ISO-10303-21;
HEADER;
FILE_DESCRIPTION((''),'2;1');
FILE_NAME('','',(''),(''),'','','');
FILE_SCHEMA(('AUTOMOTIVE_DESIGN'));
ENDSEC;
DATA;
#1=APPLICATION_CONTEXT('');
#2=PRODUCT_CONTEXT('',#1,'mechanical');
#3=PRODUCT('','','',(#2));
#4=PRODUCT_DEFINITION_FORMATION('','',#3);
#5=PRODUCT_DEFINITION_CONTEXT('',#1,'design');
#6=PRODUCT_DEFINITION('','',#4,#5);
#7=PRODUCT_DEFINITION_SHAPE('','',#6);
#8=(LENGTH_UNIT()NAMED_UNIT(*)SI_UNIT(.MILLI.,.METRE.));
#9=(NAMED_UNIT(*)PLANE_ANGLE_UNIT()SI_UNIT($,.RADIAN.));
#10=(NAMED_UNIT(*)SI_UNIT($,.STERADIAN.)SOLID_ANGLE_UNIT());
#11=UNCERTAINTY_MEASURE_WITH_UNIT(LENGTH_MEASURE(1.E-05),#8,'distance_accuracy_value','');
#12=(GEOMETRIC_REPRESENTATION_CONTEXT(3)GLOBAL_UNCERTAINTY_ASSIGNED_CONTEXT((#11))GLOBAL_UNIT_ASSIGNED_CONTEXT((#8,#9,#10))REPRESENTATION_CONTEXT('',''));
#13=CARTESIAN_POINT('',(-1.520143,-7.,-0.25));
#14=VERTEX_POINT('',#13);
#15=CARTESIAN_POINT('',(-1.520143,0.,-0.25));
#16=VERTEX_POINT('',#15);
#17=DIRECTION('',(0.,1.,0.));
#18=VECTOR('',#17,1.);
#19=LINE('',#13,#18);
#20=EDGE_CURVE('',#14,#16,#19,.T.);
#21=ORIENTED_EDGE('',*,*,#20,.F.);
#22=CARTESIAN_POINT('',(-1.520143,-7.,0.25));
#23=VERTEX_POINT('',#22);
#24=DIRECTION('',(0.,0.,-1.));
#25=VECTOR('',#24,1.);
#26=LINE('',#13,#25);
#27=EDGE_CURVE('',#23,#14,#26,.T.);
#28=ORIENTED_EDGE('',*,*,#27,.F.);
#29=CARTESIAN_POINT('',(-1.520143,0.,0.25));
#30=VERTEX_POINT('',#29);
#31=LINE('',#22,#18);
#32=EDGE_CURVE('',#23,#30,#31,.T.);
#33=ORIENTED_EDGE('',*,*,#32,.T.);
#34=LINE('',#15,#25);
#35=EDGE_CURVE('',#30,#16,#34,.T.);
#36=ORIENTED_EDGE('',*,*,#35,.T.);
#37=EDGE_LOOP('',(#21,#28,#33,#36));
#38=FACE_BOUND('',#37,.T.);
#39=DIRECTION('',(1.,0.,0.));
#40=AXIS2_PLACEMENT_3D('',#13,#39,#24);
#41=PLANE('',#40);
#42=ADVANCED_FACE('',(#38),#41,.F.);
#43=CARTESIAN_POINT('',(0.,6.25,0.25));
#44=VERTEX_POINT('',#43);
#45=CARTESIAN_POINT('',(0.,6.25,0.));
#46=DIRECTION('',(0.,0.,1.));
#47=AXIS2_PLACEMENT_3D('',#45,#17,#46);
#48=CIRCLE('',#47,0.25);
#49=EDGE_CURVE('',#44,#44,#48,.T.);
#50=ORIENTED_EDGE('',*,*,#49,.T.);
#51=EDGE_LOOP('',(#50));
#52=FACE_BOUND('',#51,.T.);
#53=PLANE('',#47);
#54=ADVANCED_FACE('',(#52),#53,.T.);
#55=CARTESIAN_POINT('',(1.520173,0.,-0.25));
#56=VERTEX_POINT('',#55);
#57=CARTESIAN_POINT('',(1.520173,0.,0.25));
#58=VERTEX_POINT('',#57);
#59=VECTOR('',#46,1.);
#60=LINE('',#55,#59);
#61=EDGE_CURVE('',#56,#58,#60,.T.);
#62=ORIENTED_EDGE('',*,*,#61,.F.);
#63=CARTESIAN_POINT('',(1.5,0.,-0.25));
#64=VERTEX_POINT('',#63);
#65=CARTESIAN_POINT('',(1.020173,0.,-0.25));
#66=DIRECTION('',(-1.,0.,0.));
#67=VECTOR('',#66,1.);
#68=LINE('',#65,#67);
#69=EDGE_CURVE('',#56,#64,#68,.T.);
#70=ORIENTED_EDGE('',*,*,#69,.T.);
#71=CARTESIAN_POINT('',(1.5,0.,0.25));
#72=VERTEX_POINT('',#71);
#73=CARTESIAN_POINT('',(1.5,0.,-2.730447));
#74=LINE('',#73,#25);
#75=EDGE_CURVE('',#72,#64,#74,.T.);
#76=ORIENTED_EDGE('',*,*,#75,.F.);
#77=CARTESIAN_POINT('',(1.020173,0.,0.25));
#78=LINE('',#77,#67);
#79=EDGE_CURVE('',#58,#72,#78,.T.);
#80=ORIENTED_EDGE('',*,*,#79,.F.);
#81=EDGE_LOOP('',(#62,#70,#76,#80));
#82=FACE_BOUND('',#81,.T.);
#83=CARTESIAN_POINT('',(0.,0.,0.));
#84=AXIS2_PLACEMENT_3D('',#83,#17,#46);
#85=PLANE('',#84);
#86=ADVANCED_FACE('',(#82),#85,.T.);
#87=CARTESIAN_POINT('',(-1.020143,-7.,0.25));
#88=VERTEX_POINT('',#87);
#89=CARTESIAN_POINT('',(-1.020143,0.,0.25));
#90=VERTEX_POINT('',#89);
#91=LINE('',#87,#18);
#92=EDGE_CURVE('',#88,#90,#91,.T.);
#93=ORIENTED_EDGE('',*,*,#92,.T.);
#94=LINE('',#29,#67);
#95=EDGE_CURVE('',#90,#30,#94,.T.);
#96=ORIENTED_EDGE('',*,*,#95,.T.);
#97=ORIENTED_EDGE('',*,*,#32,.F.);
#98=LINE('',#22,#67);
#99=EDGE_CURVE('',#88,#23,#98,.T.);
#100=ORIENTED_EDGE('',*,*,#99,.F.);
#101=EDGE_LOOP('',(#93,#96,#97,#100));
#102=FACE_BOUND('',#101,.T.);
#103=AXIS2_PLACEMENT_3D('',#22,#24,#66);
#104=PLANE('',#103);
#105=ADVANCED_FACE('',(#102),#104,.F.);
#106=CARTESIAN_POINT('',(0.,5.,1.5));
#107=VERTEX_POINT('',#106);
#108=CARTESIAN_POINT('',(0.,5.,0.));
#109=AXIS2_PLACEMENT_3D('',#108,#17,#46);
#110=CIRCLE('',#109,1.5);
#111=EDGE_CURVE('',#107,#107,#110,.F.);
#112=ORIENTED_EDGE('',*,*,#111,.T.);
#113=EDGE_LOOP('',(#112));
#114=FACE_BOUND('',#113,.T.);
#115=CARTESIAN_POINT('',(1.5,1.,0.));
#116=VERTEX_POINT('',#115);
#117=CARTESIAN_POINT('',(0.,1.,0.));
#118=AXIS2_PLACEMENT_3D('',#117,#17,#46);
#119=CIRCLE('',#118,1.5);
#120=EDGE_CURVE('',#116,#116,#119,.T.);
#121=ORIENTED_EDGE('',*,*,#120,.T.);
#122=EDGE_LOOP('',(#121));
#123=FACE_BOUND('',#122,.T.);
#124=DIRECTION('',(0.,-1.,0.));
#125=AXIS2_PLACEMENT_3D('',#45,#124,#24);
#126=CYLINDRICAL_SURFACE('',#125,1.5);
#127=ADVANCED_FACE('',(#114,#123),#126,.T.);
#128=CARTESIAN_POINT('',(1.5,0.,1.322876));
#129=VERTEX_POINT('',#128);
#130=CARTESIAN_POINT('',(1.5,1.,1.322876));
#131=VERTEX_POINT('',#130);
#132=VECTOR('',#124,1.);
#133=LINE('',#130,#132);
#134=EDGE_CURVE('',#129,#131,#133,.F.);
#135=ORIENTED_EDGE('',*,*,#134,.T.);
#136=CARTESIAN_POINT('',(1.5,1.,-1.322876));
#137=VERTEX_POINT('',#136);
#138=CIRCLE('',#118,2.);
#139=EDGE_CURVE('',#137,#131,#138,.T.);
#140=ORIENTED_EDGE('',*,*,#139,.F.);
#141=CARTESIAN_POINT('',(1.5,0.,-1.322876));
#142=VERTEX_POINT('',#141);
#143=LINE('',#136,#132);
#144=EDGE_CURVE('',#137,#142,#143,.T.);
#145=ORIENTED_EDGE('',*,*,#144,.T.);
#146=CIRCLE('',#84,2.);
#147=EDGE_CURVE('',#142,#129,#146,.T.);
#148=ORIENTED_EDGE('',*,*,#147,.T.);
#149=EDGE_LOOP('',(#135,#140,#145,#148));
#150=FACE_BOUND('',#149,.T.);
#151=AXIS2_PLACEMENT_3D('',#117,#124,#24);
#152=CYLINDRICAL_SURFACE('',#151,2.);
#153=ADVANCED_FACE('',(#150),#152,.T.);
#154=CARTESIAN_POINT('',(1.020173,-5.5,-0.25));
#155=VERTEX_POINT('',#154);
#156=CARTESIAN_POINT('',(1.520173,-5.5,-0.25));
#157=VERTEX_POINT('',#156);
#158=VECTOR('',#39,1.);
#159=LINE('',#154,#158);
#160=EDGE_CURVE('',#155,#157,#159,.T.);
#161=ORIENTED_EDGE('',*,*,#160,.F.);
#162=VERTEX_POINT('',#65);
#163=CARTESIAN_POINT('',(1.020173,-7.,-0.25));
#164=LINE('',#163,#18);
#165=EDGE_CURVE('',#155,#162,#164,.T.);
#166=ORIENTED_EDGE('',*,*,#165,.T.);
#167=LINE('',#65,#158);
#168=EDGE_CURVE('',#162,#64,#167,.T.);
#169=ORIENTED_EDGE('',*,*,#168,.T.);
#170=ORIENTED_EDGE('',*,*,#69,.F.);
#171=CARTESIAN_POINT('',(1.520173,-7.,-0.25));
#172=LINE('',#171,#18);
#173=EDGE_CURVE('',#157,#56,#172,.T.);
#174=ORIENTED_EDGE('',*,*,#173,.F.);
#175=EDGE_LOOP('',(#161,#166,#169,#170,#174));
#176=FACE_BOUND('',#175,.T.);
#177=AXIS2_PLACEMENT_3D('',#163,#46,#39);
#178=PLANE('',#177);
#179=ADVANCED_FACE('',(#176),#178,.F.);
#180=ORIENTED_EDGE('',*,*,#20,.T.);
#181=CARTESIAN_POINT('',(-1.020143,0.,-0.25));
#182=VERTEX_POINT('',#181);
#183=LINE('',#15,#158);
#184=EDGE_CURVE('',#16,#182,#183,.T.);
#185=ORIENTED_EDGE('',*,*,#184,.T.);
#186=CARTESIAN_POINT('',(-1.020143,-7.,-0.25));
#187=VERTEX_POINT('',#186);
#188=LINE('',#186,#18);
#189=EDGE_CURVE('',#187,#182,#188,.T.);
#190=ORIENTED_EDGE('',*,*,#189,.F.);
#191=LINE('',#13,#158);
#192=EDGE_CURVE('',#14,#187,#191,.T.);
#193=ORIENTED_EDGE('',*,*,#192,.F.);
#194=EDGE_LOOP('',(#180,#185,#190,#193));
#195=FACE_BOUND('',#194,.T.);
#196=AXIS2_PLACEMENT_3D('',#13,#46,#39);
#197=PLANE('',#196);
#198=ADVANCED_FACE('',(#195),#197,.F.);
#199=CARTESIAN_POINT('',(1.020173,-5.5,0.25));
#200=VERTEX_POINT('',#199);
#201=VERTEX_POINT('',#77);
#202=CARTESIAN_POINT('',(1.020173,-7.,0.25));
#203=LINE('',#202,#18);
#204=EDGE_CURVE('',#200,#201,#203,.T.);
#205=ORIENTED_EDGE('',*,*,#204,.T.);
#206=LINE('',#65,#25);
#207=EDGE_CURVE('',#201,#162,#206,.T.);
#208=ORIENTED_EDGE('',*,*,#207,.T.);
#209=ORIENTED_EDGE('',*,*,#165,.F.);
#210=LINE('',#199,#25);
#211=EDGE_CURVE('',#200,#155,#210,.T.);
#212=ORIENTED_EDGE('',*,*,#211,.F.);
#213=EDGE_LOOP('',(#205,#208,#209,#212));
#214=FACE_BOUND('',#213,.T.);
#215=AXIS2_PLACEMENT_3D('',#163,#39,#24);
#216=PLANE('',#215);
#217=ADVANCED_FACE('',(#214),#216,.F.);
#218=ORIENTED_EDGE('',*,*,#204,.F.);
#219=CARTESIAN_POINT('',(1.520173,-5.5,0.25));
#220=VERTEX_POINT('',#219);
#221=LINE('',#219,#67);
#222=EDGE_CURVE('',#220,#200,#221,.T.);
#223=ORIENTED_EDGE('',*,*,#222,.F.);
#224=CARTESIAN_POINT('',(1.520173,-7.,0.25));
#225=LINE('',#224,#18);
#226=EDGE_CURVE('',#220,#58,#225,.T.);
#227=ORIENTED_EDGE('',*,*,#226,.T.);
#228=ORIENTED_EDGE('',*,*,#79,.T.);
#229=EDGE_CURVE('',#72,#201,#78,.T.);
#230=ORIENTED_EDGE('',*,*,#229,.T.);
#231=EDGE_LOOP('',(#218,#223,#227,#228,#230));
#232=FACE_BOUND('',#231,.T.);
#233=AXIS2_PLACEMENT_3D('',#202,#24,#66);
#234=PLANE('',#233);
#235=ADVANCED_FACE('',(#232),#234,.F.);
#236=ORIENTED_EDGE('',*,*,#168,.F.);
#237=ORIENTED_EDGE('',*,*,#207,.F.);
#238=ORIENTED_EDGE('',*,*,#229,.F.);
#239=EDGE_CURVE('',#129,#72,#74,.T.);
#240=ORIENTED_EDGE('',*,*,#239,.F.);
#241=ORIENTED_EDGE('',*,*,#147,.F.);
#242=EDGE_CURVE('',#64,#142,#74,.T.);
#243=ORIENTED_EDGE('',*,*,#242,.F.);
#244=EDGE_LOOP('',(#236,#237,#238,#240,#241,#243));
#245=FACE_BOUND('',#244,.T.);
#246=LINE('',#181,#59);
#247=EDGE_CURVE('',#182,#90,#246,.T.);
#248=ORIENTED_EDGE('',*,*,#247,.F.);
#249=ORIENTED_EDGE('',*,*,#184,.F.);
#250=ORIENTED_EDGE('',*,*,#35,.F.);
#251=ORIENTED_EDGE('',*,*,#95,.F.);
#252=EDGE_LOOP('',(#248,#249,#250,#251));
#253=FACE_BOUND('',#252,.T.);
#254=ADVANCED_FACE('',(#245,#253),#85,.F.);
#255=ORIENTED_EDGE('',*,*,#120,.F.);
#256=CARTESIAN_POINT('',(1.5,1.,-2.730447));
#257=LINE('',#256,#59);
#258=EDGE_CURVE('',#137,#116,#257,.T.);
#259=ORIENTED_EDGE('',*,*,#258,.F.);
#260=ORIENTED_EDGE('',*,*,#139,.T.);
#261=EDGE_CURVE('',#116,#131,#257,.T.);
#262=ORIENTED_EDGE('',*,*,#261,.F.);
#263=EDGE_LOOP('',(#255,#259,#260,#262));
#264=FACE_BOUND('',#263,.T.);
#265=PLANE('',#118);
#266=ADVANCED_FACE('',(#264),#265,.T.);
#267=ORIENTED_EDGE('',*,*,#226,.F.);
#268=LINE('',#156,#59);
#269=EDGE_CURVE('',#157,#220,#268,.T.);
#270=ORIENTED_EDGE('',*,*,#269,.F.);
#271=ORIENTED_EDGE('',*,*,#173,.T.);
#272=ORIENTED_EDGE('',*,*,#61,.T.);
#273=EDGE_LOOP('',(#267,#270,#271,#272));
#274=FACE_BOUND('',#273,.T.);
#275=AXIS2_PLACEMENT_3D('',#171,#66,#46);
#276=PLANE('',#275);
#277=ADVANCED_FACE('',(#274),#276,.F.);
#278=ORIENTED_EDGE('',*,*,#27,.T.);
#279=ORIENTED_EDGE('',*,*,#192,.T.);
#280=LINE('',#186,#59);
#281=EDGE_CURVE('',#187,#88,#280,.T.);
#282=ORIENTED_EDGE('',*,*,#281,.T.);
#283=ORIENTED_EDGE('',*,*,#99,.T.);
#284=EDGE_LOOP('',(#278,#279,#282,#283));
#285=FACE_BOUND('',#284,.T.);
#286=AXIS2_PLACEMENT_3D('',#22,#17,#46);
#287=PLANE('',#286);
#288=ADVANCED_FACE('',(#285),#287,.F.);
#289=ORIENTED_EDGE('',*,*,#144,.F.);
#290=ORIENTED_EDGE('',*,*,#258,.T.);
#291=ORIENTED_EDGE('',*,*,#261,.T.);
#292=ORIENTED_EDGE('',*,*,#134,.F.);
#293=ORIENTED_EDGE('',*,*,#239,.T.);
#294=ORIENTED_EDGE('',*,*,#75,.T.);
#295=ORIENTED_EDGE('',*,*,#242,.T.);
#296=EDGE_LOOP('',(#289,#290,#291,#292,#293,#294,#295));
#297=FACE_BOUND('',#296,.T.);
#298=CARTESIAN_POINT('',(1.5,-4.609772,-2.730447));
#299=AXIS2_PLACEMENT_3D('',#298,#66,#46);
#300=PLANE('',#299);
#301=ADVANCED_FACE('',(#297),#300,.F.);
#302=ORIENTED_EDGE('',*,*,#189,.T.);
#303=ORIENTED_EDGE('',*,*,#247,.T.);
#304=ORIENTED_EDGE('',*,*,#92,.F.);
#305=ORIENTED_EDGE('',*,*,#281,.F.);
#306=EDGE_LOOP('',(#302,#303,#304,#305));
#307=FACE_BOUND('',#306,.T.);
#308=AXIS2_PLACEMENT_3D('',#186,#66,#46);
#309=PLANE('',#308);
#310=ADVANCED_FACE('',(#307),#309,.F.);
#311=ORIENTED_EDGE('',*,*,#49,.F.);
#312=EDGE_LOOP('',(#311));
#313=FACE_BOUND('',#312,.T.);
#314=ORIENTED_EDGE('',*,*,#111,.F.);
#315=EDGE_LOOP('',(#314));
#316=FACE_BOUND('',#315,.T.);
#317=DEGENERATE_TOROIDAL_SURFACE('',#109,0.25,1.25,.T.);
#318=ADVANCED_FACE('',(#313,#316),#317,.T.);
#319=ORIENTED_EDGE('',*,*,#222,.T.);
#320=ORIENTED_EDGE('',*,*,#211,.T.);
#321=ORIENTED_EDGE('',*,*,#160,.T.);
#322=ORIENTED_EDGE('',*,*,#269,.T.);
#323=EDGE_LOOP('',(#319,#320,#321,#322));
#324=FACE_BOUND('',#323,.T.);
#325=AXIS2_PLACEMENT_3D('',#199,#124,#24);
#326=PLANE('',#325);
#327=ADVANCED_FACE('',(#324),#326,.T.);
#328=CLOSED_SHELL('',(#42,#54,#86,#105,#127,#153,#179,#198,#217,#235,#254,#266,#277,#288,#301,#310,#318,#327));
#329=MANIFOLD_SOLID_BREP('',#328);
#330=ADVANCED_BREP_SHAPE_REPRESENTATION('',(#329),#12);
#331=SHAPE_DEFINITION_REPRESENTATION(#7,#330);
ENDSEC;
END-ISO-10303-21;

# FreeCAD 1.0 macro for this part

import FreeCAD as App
import Part
import Sketcher
Q = App.Units.Quantity


def edges_at(feature, points):
    """Names of the edges that pass closest to the given points."""
    edges = feature.Shape.Edges
    near = lambda p: min(range(len(edges)), key=lambda i: edges[i].distToShape(Part.Vertex(*p))[0])
    return sorted({f"Edge{near(p) + 1}" for p in points})


def add_polygon(sketch, points):
    """Adds a closed chain of lines whose ends are joined by coincident constraints."""
    first, n = sketch.GeometryCount, len(points)
    for a, b in zip(points, points[1:] + points[:1]):
        sketch.addGeometry(Part.LineSegment(App.Vector(*a, 0), App.Vector(*b, 0)), False)
    for i in range(n):
        sketch.addConstraint(Sketcher.Constraint("Coincident", first + i, 2, first + (i + 1) % n, 1))

doc = App.newDocument("Part")
body = doc.addObject("PartDesign::Body", "Body")

sketch1 = body.newObject("Sketcher::SketchObject", "Sketch")
sketch1.AttachmentSupport = (doc.getObject("XZ_Plane"), [""])
sketch1.MapMode = "FlatFace"
sketch1.addGeometry(Part.Circle(App.Vector(0, 0, 0), App.Vector(0, 0, 1), 2), False)
sketch1.addConstraint(Sketcher.Constraint("Coincident", 0, 3, -1, 1))
sketch1.addConstraint(Sketcher.Constraint("Diameter", 0, Q("4 mm")))
pad1 = body.newObject("PartDesign::Pad", "Pad")
pad1.Profile = sketch1
pad1.Length = 1
pad1.Reversed = True

sketch2 = body.newObject("Sketcher::SketchObject", "Sketch001")
sketch2.AttachmentSupport = (doc.getObject("XZ_Plane"), [""])
sketch2.MapMode = "FlatFace"
sketch2.AttachmentOffset = App.Placement(App.Vector(0, 0, -1), App.Rotation())
sketch2.addGeometry(Part.Circle(App.Vector(0, 0, 0), App.Vector(0, 0, 1), 1.5), False)
sketch2.addConstraint(Sketcher.Constraint("Coincident", 0, 3, -1, 1))
sketch2.addConstraint(Sketcher.Constraint("Diameter", 0, Q("3 mm")))
pad2 = body.newObject("PartDesign::Pad", "Pad001")
pad2.Profile = sketch2
pad2.Length = 5.25
pad2.Reversed = True

sketch3 = body.newObject("Sketcher::SketchObject", "Sketch002")
sketch3.AttachmentSupport = (doc.getObject("XZ_Plane"), [""])
sketch3.MapMode = "FlatFace"
add_polygon(sketch3, [(-1.520143, 0.25), (-1.520143, -0.25), (-1.020143, -0.25), (-1.020143, 0.25)])
add_polygon(sketch3, [(1.020173, 0.25), (1.020173, -0.25), (1.520173, -0.25), (1.520173, 0.25)])
sketch3.addConstraint(Sketcher.Constraint("Vertical", 0))
sketch3.addConstraint(Sketcher.Constraint("Horizontal", 1))
sketch3.addConstraint(Sketcher.Constraint("Vertical", 2))
sketch3.addConstraint(Sketcher.Constraint("Horizontal", 3))
sketch3.addConstraint(Sketcher.Constraint("Vertical", 4))
sketch3.addConstraint(Sketcher.Constraint("Horizontal", 5))
sketch3.addConstraint(Sketcher.Constraint("Vertical", 6))
sketch3.addConstraint(Sketcher.Constraint("Horizontal", 7))
sketch3.addConstraint(Sketcher.Constraint("Horizontal", 1, 2, 4, 2))
sketch3.addConstraint(Sketcher.Constraint("Horizontal", 3, 2, 6, 2))
sketch3.addConstraint(Sketcher.Constraint("Equal", 3, 5))
sketch3.addConstraint(Sketcher.Constraint("Equal", 7, 0))
sketch3.addConstraint(Sketcher.Constraint("DistanceX", 1, 1, 1, 2, Q("0.5 mm")))
sketch3.addConstraint(Sketcher.Constraint("DistanceY", 0, 2, -1, 1, Q("0.25 mm")))
sketch3.addConstraint(Sketcher.Constraint("DistanceX", 0, 2, -1, 1, Q("1.520143 mm")))
sketch3.addConstraint(Sketcher.Constraint("DistanceX", -1, 1, 4, 2, Q("1.020173 mm")))
pad3 = body.newObject("PartDesign::Pad", "Pad002")
pad3.Profile = sketch3
pad3.Length = 7

sketch4 = body.newObject("Sketcher::SketchObject", "Sketch003")
sketch4.AttachmentSupport = (doc.getObject("XZ_Plane"), [""])
sketch4.MapMode = "FlatFace"
sketch4.AttachmentOffset = App.Placement(App.Vector(0, 0, 7), App.Rotation())
add_polygon(sketch4, [(1.020173, 0.25), (1.020173, -0.25), (1.520173, -0.25), (1.520173, 0.25)])
sketch4.addConstraint(Sketcher.Constraint("Vertical", 0))
sketch4.addConstraint(Sketcher.Constraint("Horizontal", 1))
sketch4.addConstraint(Sketcher.Constraint("Vertical", 2))
sketch4.addConstraint(Sketcher.Constraint("Horizontal", 3))
sketch4.addConstraint(Sketcher.Constraint("Equal", 3, 0))
sketch4.addConstraint(Sketcher.Constraint("DistanceX", 1, 1, 1, 2, Q("0.5 mm")))
sketch4.addConstraint(Sketcher.Constraint("DistanceY", 0, 2, -1, 1, Q("0.25 mm")))
sketch4.addConstraint(Sketcher.Constraint("DistanceX", -1, 1, 0, 2, Q("1.020173 mm")))
pocket1 = body.newObject("PartDesign::Pocket", "Pocket")
pocket1.Profile = sketch4
pocket1.Length = 1.5

sketch5 = body.newObject("Sketcher::SketchObject", "Sketch004")
sketch5.AttachmentSupport = (doc.getObject("XZ_Plane"), [""])
sketch5.MapMode = "FlatFace"
sketch5.AttachmentOffset = App.Placement(App.Vector(0, 0, -1), App.Rotation())
add_polygon(sketch5, [(1.5, -2.730447), (1.5, 1.769553), (2.5, 1.769553), (2.5, -2.730447)])
sketch5.addConstraint(Sketcher.Constraint("Vertical", 0))
sketch5.addConstraint(Sketcher.Constraint("Horizontal", 1))
sketch5.addConstraint(Sketcher.Constraint("Vertical", 2))
sketch5.addConstraint(Sketcher.Constraint("Horizontal", 3))
sketch5.addConstraint(Sketcher.Constraint("DistanceX", 1, 1, 1, 2, Q("1 mm")))
sketch5.addConstraint(Sketcher.Constraint("DistanceY", 0, 1, 0, 2, Q("4.5 mm")))
sketch5.addConstraint(Sketcher.Constraint("DistanceX", -1, 1, 0, 2, Q("1.5 mm")))
sketch5.addConstraint(Sketcher.Constraint("DistanceY", -1, 1, 0, 2, Q("1.769553 mm")))
pocket2 = body.newObject("PartDesign::Pocket", "Pocket001")
pocket2.Profile = sketch5
pocket2.Length = 1
pocket2.Reversed = True
doc.recompute()

fillet = body.newObject("PartDesign::Fillet", "Fillet")
fillet.Base = (pocket2, edges_at(pocket2, [(0, 6.25, 1.5)]))
fillet.Radius = 1.25

doc.recompute()
